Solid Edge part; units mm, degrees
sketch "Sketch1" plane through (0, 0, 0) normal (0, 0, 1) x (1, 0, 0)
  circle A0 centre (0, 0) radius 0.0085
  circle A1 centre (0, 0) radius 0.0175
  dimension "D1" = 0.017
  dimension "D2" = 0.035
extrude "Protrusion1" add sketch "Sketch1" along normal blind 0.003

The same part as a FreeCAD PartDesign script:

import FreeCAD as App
import Part
import Sketcher
Q = App.Units.Quantity

doc = App.newDocument("Part")
params = doc.addObject("Spreadsheet::Sheet", "Params")
for row, (alias, value) in enumerate([
    ("pad1_length", "0.003 mm"),
], start=1):
    params.set(f"A{row}", alias)
    params.set(f"B{row}", "=" + value)
    params.setAlias(f"B{row}", alias)

body = doc.addObject("PartDesign::Body", "Body")

sketch1 = body.newObject("Sketcher::SketchObject", "Sketch")
sketch1.AttachmentSupport = (doc.getObject("XY_Plane"), [""])
sketch1.MapMode = "FlatFace"
sketch1.addGeometry([
    Part.Circle(App.Vector(0, 0, 0), App.Vector(0, 0, 1), 0.018),
    Part.Circle(App.Vector(0, 0, 0), App.Vector(0, 0, 1), 0.009),
], False)
sketch1.addConstraint([
    Sketcher.Constraint("Coincident", 0, 3, -1, 1),
    Sketcher.Constraint("Coincident", 1, 3, -1, 1),
    Sketcher.Constraint("Diameter", 0, Q("0.035 mm")),
    Sketcher.Constraint("Diameter", 1, Q("0.017 mm")),
])
pad1 = body.newObject("PartDesign::Pad", "Pad")
pad1.Profile = sketch1
pad1.setExpression("Length", "Params.pad1_length")

doc.recompute()
